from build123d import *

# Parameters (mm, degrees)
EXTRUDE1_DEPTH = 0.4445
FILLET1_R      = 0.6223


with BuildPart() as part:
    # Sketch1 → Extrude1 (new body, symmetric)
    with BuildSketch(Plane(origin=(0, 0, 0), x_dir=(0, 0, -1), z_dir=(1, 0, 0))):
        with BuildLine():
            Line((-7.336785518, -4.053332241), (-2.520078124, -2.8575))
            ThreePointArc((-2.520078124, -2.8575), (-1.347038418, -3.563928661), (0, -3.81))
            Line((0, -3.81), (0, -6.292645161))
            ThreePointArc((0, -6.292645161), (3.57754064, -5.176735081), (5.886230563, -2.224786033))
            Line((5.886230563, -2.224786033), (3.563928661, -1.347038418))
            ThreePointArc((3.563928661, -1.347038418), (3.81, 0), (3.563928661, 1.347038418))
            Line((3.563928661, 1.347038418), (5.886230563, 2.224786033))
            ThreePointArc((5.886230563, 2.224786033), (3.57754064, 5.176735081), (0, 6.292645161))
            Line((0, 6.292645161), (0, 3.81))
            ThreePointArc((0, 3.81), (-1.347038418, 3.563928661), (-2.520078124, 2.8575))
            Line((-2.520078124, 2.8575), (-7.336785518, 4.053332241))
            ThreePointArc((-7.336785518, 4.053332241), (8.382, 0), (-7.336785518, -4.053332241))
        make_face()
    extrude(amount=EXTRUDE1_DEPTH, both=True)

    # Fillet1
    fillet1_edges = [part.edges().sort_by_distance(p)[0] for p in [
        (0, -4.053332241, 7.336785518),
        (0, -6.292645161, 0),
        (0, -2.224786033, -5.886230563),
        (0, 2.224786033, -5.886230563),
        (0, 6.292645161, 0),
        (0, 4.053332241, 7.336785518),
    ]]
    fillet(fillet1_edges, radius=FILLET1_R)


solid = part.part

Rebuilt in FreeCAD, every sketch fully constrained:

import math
import FreeCAD as App
import Part
import Sketcher
from FreeCAD import Vector
Q = App.Units.Quantity


def edges_at(feature, points):
    """Names of the edges that pass closest to the given points."""
    edges = feature.Shape.Edges
    near = lambda p: min(range(len(edges)), key=lambda i: edges[i].distToShape(Part.Vertex(*p))[0])
    return sorted({f"Edge{near(p) + 1}" for p in points})

doc = App.newDocument("Part")
body = doc.addObject("PartDesign::Body", "Body")

# Sketch on YZ plane
sketch1 = body.newObject("Sketcher::SketchObject", "Sketch")
sketch1.AttachmentSupport = (doc.getObject("YZ_Plane"), [""])
sketch1.MapMode = "FlatFace"
sketch1.addGeometry([
    Part.LineSegment(Vector(-2.8575, 2.520078, 0), Vector(-4.053332, 7.336786, 0)),  # 0
    Part.ArcOfCircle(Part.Circle(Vector(0, 0, 0), Vector(0, 0, 1), 8.382), math.radians(118.919204), math.radians(421.080796)),  # 1
    Part.LineSegment(Vector(4.053332, 7.336786, 0), Vector(2.8575, 2.520078, 0)),  # 2
    Part.ArcOfCircle(Part.Circle(Vector(0, 0, 0), Vector(0, 0, 1), 3.81), math.radians(0), math.radians(41.409622)),  # 3
    Part.LineSegment(Vector(3.81, 0, 0), Vector(6.292645, 0, 0)),  # 4
    Part.ArcOfCircle(Part.Circle(Vector(0, 0, 0), Vector(0, 0, 1), 6.292645), math.radians(-69.295189), math.radians(0)),  # 5
    Part.LineSegment(Vector(2.224786, -5.886231, 0), Vector(1.347038, -3.563929, 0)),  # 6
    Part.ArcOfCircle(Part.Circle(Vector(0, 0, 0), Vector(0, 0, 1), 3.81), math.radians(-110.704811), math.radians(-69.295189)),  # 7
    Part.LineSegment(Vector(-1.347038, -3.563929, 0), Vector(-2.224786, -5.886231, 0)),  # 8
    Part.ArcOfCircle(Part.Circle(Vector(0, 0, 0), Vector(0, 0, 1), 6.292645), math.radians(180), math.radians(249.295189)),  # 9
    Part.LineSegment(Vector(-6.292645, 0, 0), Vector(-3.81, 0, 0)),  # 10
    Part.ArcOfCircle(Part.Circle(Vector(0, 0, 0), Vector(0, 0, 1), 3.81), math.radians(138.590378), math.radians(180)),  # 11
], False)
sketch1.addConstraint([
    Sketcher.Constraint("Coincident", 0, 2, 1, 1),
    Sketcher.Constraint("Coincident", 1, 2, 2, 1),
    Sketcher.Constraint("Coincident", 2, 2, 3, 2),
    Sketcher.Constraint("Coincident", 3, 1, 4, 1),
    Sketcher.Constraint("Coincident", 4, 2, 5, 2),
    Sketcher.Constraint("Coincident", 5, 1, 6, 1),
    Sketcher.Constraint("Coincident", 6, 2, 7, 2),
    Sketcher.Constraint("Coincident", 7, 1, 8, 1),
    Sketcher.Constraint("Coincident", 8, 2, 9, 2),
    Sketcher.Constraint("Coincident", 9, 1, 10, 1),
    Sketcher.Constraint("Coincident", 10, 2, 11, 2),
    Sketcher.Constraint("Coincident", 11, 1, 0, 1),
    Sketcher.Constraint("Horizontal", 4),
    Sketcher.Constraint("Horizontal", 10),
    Sketcher.Constraint("Coincident", 1, 3, -1, 1),
    Sketcher.Constraint("Coincident", 3, 3, -1, 1),
    Sketcher.Constraint("Coincident", 5, 3, -1, 1),
    Sketcher.Constraint("Coincident", 7, 3, -1, 1),
    Sketcher.Constraint("Coincident", 9, 3, -1, 1),
    Sketcher.Constraint("Coincident", 11, 3, -1, 1),
    Sketcher.Constraint("Equal", 3, 7),
    Sketcher.Constraint("Equal", 5, 9),
    Sketcher.Constraint("Equal", 7, 11),
    Sketcher.Constraint("PointOnObject", 3, 1, -1),
    Sketcher.Constraint("PointOnObject", 9, 1, -1),
    Sketcher.Constraint("Horizontal", 0, 2, 1, 2),
    Sketcher.Constraint("Horizontal", 6, 2, 7, 1),
    Sketcher.Constraint("Horizontal", 5, 1, 8, 2),
    Sketcher.Constraint("Horizontal", 2, 2, 11, 1),
    Sketcher.Constraint("Radius", 1, Q("0.33 in")),
    Sketcher.Constraint("Radius", 3, Q("0.15 in")),
    Sketcher.Constraint("DistanceX", -1, 1, 2, 2, Q("0.1125 in")),
    Sketcher.Constraint("Radius", 5, 6.292645),
    Sketcher.Constraint("DistanceY", 5, 1, 6, 2, 2.322302),
    Sketcher.Constraint("Distance", 0, 4.962931),
    Sketcher.Constraint("DistanceY", 5, 1, -1, 1, 5.886231),
])
pad1 = body.newObject("PartDesign::Pad", "Pad")
pad1.Profile = sketch1
pad1.Length = Q("0.035 in")
pad1.Midplane = True
doc.recompute()

fillet = body.newObject("PartDesign::Fillet", "Fillet")
fillet.Base = (pad1, edges_at(pad1, [
    (0, -4.053, 7.337),
    (0, -6.293, 0),
    (0, -2.225, -5.886),
    (0, 2.225, -5.886),
    (0, 6.293, 0),
    (0, 4.053, 7.337),
]))
fillet.Radius = Q("0.0245 in")

doc.recompute()
